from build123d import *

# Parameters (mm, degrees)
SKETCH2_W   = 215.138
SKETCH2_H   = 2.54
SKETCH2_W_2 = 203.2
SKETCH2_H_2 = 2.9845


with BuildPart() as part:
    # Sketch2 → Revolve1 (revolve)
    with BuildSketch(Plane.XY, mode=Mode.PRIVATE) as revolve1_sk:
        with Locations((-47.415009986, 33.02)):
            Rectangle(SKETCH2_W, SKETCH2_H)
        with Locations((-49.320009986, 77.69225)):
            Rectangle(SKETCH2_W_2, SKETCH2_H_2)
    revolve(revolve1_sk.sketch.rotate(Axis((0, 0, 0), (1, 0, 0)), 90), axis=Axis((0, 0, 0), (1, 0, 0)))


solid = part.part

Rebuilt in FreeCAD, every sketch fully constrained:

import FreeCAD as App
import Part
import Sketcher
from FreeCAD import Vector
Q = App.Units.Quantity

doc = App.newDocument("Part")
params = doc.addObject("Spreadsheet::Sheet", "Params")
for row, (alias, value) in enumerate([
    ("sketch1_width", "8 in"),
    ("sketch1_height", "0.1 in"),
    ("sketch1_width2", "8.47 in"),
    ("revolution_angle", "360 deg"),
], start=1):
    params.set(f"A{row}", alias)
    params.set(f"B{row}", "=" + value)
    params.setAlias(f"B{row}", alias)

body = doc.addObject("PartDesign::Body", "Body")
body.AllowCompound = True

sketch1 = doc.addObject("Sketcher::SketchObject", "Sketch")
body.addObject(sketch1)
sketch1.AttachmentSupport = (doc.XY_Plane, [""])
sketch1.MapMode = "FlatFace"
sketch1.addGeometry([
    Part.LineSegment(Vector(-155, 34.3, 0), Vector(-155, 31.8, 0)),
    Part.LineSegment(Vector(-155, 31.8, 0), Vector(60.2, 31.8, 0)),
    Part.LineSegment(Vector(60.2, 31.8, 0), Vector(60.2, 34.3, 0)),
    Part.LineSegment(Vector(60.2, 34.3, 0), Vector(-155, 34.3, 0)),
    Part.LineSegment(Vector(-150.9, 79.2, 0), Vector(-150.9, 76.2, 0)),
    Part.LineSegment(Vector(-150.9, 76.2, 0), Vector(52.3, 76.2, 0)),
    Part.LineSegment(Vector(52.3, 76.2, 0), Vector(52.3, 79.2, 0)),
    Part.LineSegment(Vector(52.3, 79.2, 0), Vector(-150.9, 79.2, 0)),
], False)
sketch1.addConstraint([
    Sketcher.Constraint("Coincident", 0, 2, 1, 1),
    Sketcher.Constraint("Coincident", 1, 2, 2, 1),
    Sketcher.Constraint("Coincident", 2, 2, 3, 1),
    Sketcher.Constraint("Coincident", 3, 2, 0, 1),
    Sketcher.Constraint("Coincident", 4, 2, 5, 1),
    Sketcher.Constraint("Coincident", 5, 2, 6, 1),
    Sketcher.Constraint("Coincident", 6, 2, 7, 1),
    Sketcher.Constraint("Coincident", 7, 2, 4, 1),
    Sketcher.Constraint("Vertical", 0),
    Sketcher.Constraint("Horizontal", 1),
    Sketcher.Constraint("Vertical", 2),
    Sketcher.Constraint("Horizontal", 3),
    Sketcher.Constraint("Vertical", 4),
    Sketcher.Constraint("Horizontal", 5),
    Sketcher.Constraint("Vertical", 6),
    Sketcher.Constraint("Horizontal", 7),
    Sketcher.Constraint("DistanceX", 5, 1, 5, 2, Q("8 in")),
    Sketcher.Constraint("DistanceY", 0, 2, 0, 1, Q("0.1 in")),
    Sketcher.Constraint("DistanceY", -1, 1, 4, 2, Q("3 in")),
    Sketcher.Constraint("DistanceX", 1, 1, 1, 2, Q("8.47 in")),
    Sketcher.Constraint("DistanceY", -1, 1, 0, 2, Q("1.25 in")),
    Sketcher.Constraint("DistanceX", 3, 2, 4, 2, Q("0.16 in")),
    Sketcher.Constraint("DistanceY", 4, 2, 4, 1, Q("0.1175 in")),
    Sketcher.Constraint("DistanceX", 0, 2, -1, 1, 154.98401),
])
sketch1.setExpression("Constraints[16]", "Params.sketch1_width")
sketch1.setExpression("Constraints[17]", "Params.sketch1_height")
sketch1.setExpression("Constraints[19]", "Params.sketch1_width2")
revolution = doc.addObject("PartDesign::Revolution", "Revolution")
body.addObject(revolution)
revolution.Profile = sketch1
revolution.ReferenceAxis = (sketch1, ["H_Axis"])
revolution.setExpression("Angle", "Params.revolution_angle")

doc.recompute()
